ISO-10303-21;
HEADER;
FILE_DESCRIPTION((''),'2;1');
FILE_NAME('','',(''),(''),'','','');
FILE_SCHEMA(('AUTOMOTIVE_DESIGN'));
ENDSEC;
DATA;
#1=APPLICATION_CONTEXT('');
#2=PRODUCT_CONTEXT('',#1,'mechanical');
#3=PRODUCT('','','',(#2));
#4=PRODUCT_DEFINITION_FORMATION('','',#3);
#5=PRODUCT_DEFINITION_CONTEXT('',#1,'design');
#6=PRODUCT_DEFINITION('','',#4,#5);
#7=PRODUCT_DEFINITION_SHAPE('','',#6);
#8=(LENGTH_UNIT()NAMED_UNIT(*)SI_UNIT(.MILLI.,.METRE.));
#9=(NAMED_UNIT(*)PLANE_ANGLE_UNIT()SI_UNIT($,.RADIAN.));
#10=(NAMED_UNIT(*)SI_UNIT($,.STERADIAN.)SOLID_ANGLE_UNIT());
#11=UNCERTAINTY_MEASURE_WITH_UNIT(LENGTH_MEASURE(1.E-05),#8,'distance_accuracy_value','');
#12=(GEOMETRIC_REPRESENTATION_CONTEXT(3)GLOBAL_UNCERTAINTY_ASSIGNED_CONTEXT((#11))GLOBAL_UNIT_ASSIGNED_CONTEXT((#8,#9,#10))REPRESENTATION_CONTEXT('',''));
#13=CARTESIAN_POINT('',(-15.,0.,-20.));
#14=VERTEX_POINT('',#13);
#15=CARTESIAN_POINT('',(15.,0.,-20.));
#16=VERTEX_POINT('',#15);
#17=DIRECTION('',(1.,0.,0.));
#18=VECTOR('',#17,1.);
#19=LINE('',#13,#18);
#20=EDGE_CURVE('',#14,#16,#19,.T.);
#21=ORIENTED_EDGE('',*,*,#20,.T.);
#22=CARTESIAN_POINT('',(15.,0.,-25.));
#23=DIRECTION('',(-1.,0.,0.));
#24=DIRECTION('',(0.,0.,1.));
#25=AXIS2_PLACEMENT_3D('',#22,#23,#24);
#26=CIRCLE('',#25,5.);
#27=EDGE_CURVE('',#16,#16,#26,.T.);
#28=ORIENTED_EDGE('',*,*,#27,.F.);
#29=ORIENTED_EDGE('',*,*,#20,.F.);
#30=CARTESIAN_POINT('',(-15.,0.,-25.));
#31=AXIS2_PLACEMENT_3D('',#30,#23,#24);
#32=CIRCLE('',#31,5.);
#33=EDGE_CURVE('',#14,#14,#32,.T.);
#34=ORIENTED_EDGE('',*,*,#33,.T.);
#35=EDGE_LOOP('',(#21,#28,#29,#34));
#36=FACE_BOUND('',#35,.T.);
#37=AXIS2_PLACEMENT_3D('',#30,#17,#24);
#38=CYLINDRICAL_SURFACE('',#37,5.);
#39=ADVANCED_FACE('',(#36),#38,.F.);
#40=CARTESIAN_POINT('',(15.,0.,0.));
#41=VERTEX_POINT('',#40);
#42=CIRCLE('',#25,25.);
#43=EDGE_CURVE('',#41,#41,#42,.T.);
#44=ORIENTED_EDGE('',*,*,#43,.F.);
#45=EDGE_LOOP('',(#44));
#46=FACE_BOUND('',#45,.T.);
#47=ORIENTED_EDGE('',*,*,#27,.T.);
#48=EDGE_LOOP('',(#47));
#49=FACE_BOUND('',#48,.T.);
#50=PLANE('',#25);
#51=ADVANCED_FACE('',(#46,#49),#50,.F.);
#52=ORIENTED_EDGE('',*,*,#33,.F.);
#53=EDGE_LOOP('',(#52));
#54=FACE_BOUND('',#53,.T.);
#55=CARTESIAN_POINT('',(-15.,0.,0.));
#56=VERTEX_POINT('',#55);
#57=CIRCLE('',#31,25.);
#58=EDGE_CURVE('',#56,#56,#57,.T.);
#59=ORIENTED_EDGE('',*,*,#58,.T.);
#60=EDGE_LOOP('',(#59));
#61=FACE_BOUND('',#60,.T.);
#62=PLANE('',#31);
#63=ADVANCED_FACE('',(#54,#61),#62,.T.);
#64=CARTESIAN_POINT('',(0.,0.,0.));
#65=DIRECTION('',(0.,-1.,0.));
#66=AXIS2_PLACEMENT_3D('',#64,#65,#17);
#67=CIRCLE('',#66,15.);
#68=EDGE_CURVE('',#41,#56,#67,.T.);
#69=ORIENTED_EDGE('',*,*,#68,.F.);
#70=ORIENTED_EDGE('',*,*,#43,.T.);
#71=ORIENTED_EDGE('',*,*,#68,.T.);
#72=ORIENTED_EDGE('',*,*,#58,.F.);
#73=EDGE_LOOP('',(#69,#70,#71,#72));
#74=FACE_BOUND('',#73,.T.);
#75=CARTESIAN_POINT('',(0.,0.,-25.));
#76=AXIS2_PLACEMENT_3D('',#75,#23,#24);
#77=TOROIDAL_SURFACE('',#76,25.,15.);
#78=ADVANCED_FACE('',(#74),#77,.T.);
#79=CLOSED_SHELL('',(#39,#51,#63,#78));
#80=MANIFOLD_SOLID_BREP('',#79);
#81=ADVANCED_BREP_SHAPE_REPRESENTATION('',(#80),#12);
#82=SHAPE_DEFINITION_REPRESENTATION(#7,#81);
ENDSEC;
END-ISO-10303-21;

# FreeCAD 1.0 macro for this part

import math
import FreeCAD as App
import Part
import Sketcher

doc = App.newDocument("Part")
body = doc.addObject("PartDesign::Body", "Body")

sketch1 = body.newObject("Sketcher::SketchObject", "Sketch")
sketch1.AttachmentSupport = (doc.getObject("XZ_Plane"), [""])
sketch1.MapMode = "FlatFace"
sketch1.addGeometry([
    Part.LineSegment(App.Vector(15, -20, 0), App.Vector(15, 0, 0)),
    Part.ArcOfCircle(Part.Circle(App.Vector(0, 0, 0), App.Vector(0, 0, 1), 15), math.radians(0), math.radians(180)),
    Part.LineSegment(App.Vector(-15, 0, 0), App.Vector(-15, -20, 0)),
    Part.LineSegment(App.Vector(-15, -20, 0), App.Vector(15, -20, 0)),
], False)
sketch1.addGeometry(Part.LineSegment(App.Vector(15, -25, 0), App.Vector(-15, -25, 0)), True)
sketch1.addConstraint([
    Sketcher.Constraint("Tangent", 0, 2, 1, 1),
    Sketcher.Constraint("Tangent", 1, 2, 2, 1),
    Sketcher.Constraint("Coincident", 2, 2, 3, 1),
    Sketcher.Constraint("Coincident", 3, 2, 0, 1),
    Sketcher.Constraint("Vertical", 0),
    Sketcher.Constraint("Vertical", 2),
    Sketcher.Constraint("Horizontal", 3),
    Sketcher.Constraint("Horizontal", 4),
    Sketcher.Constraint("Coincident", 1, 3, -1, 1),
    Sketcher.Constraint("Vertical", 3, 2, 4, 1),
    Sketcher.Constraint("Vertical", 2, 2, 4, 2),
    Sketcher.Constraint("Radius", 1, 15.0),
    Sketcher.Constraint("DistanceY", 0, 1, 0, 2, 20.0),
    Sketcher.Constraint("DistanceY", 4, 1, -1, 1, 25.0),
])
revolution = body.newObject("PartDesign::Revolution", "Revolution")
revolution.Profile = sketch1
revolution.ReferenceAxis = (sketch1, ["Axis0"])
revolution.Angle = 360

doc.recompute()
